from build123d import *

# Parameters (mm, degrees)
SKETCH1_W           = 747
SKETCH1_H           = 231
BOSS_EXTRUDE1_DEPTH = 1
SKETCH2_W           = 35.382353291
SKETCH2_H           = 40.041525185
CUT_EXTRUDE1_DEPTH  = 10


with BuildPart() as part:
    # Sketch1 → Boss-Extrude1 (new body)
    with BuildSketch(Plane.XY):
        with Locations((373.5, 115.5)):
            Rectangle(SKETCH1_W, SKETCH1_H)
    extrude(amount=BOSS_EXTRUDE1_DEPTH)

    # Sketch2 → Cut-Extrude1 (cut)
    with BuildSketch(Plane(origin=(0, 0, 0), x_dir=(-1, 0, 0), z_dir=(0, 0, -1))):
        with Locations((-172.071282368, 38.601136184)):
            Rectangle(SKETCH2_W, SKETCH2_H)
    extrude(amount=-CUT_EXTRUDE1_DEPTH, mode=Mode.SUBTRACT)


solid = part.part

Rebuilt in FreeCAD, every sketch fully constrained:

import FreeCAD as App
import Part
import Sketcher

V = App.Vector

doc = App.newDocument("Part")
body = doc.addObject("PartDesign::Body", "Body")

sketch1 = body.newObject("Sketcher::SketchObject", "Sketch")
sketch1.AttachmentSupport = (doc.getObject("XY_Plane"), [""])
sketch1.MapMode = "FlatFace"
sketch1.addGeometry(Part.LineSegment(V(0, 231, 0), V(0, 0, 0)), False)
sketch1.addGeometry(Part.LineSegment(V(0, 0, 0), V(747, 0, 0)), False)
sketch1.addGeometry(Part.LineSegment(V(747, 0, 0), V(747, 231, 0)), False)
sketch1.addGeometry(Part.LineSegment(V(747, 231, 0), V(0, 231, 0)), False)
sketch1.addConstraint(Sketcher.Constraint("Coincident", 0, 2, 1, 1))
sketch1.addConstraint(Sketcher.Constraint("Coincident", 1, 2, 2, 1))
sketch1.addConstraint(Sketcher.Constraint("Coincident", 2, 2, 3, 1))
sketch1.addConstraint(Sketcher.Constraint("Coincident", 3, 2, 0, 1))
sketch1.addConstraint(Sketcher.Constraint("Vertical", 0))
sketch1.addConstraint(Sketcher.Constraint("Horizontal", 1))
sketch1.addConstraint(Sketcher.Constraint("Vertical", 2))
sketch1.addConstraint(Sketcher.Constraint("Horizontal", 3))
sketch1.addConstraint(Sketcher.Constraint("Coincident", 0, 2, -1, 1))
sketch1.addConstraint(Sketcher.Constraint("DistanceX", 1, 1, 1, 2, 747.0))
sketch1.addConstraint(Sketcher.Constraint("DistanceY", 0, 2, 0, 1, 231.0))
pad1 = body.newObject("PartDesign::Pad", "Pad")
pad1.Profile = sketch1
pad1.Length = 1

sketch2 = body.newObject("Sketcher::SketchObject", "Sketch001")
sketch2.AttachmentSupport = (doc.getObject("XY_Plane"), [""])
sketch2.MapMode = "FlatFace"
sketch2.addGeometry(Part.LineSegment(V(190, 59, 0), V(190, 19, 0)), False)
sketch2.addGeometry(Part.LineSegment(V(190, 19, 0), V(154, 19, 0)), False)
sketch2.addGeometry(Part.LineSegment(V(154, 19, 0), V(154, 59, 0)), False)
sketch2.addGeometry(Part.LineSegment(V(154, 59, 0), V(190, 59, 0)), False)
sketch2.addConstraint(Sketcher.Constraint("Coincident", 0, 2, 1, 1))
sketch2.addConstraint(Sketcher.Constraint("Coincident", 1, 2, 2, 1))
sketch2.addConstraint(Sketcher.Constraint("Coincident", 2, 2, 3, 1))
sketch2.addConstraint(Sketcher.Constraint("Coincident", 3, 2, 0, 1))
sketch2.addConstraint(Sketcher.Constraint("Vertical", 0))
sketch2.addConstraint(Sketcher.Constraint("Horizontal", 1))
sketch2.addConstraint(Sketcher.Constraint("Vertical", 2))
sketch2.addConstraint(Sketcher.Constraint("Horizontal", 3))
sketch2.addConstraint(Sketcher.Constraint("DistanceY", -1, 1, 2, 2, 58.621899))
sketch2.addConstraint(Sketcher.Constraint("DistanceX", 1, 2, 1, 1, 35.382353))
sketch2.addConstraint(Sketcher.Constraint("DistanceY", 0, 2, 0, 1, 40.041525))
sketch2.addConstraint(Sketcher.Constraint("DistanceX", -1, 1, 0, 2, 189.762459))
pocket1 = body.newObject("PartDesign::Pocket", "Pocket")
pocket1.Profile = sketch2
pocket1.Length = 10
pocket1.Reversed = True

doc.recompute()
